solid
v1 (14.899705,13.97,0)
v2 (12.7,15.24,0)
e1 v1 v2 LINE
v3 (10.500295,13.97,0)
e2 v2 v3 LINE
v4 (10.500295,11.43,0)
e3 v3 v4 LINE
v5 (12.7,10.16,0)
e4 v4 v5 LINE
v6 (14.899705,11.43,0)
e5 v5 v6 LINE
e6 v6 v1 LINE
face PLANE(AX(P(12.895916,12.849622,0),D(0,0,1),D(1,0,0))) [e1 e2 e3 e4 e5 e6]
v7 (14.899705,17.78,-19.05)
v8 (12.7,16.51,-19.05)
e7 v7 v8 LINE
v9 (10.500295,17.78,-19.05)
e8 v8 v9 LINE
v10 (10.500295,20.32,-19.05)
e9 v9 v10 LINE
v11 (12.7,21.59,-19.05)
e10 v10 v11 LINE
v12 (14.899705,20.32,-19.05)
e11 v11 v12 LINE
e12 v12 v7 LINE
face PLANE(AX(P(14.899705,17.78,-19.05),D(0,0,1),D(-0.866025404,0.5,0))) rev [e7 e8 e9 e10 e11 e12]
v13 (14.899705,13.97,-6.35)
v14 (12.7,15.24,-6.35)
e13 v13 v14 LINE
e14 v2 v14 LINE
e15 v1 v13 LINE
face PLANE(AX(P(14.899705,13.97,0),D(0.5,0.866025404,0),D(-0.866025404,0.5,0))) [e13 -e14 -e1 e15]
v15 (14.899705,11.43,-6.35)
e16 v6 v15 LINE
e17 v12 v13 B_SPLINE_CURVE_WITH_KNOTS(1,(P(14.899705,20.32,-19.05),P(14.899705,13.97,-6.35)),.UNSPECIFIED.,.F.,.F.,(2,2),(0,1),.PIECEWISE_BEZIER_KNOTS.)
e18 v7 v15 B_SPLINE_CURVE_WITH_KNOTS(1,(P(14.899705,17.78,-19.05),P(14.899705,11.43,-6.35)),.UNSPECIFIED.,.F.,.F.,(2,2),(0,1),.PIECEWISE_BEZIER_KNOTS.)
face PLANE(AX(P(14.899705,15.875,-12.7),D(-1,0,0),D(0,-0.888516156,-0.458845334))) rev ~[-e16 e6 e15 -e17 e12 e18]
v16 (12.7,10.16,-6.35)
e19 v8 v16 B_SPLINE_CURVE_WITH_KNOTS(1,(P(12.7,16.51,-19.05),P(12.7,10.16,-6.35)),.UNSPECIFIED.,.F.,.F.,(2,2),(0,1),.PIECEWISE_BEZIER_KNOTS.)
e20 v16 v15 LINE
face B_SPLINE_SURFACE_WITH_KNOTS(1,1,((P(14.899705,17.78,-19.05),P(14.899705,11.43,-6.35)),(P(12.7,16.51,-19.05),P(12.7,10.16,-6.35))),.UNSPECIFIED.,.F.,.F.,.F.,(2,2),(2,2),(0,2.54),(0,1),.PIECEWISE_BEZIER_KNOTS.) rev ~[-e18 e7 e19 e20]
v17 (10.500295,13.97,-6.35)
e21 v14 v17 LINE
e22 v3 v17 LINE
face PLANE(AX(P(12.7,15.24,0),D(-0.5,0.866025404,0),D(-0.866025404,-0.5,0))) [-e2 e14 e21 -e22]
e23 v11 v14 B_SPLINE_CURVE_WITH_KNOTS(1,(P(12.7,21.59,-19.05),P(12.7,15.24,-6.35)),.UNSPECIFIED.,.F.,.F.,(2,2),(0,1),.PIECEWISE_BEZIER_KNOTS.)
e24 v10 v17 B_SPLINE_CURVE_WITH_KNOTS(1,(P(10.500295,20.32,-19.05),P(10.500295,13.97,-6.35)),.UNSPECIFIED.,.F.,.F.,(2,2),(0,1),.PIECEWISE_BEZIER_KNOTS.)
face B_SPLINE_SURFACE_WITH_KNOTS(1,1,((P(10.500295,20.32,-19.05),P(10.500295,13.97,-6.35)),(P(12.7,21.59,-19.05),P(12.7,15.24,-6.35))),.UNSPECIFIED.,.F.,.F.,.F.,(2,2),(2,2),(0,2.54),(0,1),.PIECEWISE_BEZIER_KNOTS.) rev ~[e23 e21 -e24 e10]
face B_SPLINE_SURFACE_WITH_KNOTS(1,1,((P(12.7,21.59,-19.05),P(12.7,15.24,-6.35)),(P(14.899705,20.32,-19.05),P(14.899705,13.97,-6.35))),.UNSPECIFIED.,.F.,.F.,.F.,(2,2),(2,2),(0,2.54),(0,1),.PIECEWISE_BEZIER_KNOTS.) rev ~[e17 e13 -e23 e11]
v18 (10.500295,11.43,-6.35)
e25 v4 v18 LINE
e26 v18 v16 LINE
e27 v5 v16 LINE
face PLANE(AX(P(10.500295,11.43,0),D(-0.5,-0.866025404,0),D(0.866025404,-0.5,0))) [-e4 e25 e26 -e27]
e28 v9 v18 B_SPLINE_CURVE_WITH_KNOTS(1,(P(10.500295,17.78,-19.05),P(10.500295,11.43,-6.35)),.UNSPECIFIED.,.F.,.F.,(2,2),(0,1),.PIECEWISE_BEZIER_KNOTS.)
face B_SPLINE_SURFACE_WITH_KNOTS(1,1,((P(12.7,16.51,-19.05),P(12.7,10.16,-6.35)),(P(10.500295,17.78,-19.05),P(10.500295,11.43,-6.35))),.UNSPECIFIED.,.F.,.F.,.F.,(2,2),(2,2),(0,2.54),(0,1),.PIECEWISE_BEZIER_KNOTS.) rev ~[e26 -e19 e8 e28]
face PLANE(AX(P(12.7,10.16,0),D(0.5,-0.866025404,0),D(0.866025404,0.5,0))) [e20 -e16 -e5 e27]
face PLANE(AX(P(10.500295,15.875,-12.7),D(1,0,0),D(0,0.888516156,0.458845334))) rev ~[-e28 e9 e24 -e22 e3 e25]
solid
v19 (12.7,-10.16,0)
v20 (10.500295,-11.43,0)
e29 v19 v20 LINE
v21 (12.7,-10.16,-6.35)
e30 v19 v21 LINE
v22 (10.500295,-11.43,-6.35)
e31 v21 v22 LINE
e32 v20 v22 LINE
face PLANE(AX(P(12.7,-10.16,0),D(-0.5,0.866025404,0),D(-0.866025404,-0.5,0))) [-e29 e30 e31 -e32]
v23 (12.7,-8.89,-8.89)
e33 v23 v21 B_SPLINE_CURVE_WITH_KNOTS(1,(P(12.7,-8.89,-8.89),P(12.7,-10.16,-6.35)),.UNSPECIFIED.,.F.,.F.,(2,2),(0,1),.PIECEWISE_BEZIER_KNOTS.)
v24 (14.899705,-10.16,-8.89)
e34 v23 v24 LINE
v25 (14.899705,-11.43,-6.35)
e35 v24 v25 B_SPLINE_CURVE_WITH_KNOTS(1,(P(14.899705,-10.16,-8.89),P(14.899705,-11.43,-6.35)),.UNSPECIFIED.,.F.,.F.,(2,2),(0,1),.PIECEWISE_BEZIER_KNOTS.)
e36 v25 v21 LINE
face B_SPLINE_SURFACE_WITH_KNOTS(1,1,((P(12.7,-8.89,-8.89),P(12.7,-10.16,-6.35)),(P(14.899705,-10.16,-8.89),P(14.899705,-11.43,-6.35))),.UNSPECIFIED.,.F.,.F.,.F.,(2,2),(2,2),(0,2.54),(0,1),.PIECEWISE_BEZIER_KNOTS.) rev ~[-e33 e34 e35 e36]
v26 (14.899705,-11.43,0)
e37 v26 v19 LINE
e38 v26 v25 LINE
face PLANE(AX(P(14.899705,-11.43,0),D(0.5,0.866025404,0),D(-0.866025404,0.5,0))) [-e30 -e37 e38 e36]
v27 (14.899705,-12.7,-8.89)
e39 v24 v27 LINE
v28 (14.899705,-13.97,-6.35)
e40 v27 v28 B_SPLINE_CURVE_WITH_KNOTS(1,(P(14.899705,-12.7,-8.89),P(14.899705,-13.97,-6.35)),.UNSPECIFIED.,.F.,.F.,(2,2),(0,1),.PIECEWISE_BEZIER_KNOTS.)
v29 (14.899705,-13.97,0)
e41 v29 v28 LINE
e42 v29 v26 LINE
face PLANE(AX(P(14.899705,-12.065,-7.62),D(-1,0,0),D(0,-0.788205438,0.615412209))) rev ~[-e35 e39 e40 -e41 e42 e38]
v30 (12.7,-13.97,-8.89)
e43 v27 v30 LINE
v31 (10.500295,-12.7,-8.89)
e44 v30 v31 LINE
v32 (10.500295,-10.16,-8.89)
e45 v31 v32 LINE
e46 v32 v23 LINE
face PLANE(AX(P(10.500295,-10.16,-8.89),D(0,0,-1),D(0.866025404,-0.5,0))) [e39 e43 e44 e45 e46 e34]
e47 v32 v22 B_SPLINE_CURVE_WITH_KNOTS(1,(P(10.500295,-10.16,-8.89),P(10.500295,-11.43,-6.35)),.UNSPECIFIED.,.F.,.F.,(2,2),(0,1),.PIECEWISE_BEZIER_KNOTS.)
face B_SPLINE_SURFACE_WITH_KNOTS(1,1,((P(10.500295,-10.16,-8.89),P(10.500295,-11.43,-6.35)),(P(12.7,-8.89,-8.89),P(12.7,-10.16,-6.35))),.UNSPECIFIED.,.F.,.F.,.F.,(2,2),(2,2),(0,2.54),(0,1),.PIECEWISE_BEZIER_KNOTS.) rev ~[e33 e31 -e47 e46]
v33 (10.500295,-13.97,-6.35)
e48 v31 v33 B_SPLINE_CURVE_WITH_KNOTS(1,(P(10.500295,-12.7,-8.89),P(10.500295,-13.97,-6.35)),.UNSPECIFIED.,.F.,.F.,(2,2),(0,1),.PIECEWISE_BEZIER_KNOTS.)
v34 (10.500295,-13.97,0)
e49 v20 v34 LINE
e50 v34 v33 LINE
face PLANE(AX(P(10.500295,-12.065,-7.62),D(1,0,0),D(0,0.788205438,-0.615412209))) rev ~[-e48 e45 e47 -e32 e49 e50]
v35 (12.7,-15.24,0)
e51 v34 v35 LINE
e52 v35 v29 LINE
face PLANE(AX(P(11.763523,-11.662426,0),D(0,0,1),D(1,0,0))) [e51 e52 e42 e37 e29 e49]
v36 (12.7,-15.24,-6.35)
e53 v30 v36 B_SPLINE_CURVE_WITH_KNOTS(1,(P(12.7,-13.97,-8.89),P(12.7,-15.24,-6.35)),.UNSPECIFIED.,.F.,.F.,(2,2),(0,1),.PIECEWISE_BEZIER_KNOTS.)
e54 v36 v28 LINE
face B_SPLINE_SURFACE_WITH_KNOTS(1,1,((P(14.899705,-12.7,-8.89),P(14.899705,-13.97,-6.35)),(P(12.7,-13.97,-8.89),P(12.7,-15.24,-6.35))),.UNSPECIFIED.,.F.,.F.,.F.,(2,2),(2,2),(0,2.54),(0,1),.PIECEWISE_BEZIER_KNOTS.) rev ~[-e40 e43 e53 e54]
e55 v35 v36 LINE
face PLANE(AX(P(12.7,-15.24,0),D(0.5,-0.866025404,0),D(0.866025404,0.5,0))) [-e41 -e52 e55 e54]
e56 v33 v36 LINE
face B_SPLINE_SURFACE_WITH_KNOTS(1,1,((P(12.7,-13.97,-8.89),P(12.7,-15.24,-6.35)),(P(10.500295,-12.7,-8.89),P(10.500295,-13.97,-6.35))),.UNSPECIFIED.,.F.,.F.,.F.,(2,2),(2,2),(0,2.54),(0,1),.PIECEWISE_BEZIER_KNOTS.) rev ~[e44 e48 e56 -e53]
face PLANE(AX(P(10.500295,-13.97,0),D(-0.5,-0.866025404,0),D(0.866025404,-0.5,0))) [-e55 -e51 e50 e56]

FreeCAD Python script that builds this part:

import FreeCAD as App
import Part
import Sketcher
from FreeCAD import Vector
Q = App.Units.Quantity

doc = App.newDocument("Part")
body = doc.addObject("PartDesign::Body", "Body")

# Sketch on XY plane
sketch1 = body.newObject("Sketcher::SketchObject", "Sketch")
sketch1.AttachmentSupport = (doc.getObject("XY_Plane"), [""])
sketch1.MapMode = "FlatFace"
sketch1.addGeometry(Part.LineSegment(Vector(12.7, 10.16, 0), Vector(14.899705, 11.43, 0)), False)
sketch1.addGeometry(Part.LineSegment(Vector(14.899705, 11.43, 0), Vector(14.899705, 13.97, 0)), False)
sketch1.addGeometry(Part.LineSegment(Vector(14.899705, 13.97, 0), Vector(12.7, 15.24, 0)), False)
sketch1.addGeometry(Part.LineSegment(Vector(12.7, 15.24, 0), Vector(10.500295, 13.97, 0)), False)
sketch1.addGeometry(Part.LineSegment(Vector(10.500295, 13.97, 0), Vector(10.500295, 11.43, 0)), False)
sketch1.addGeometry(Part.LineSegment(Vector(10.500295, 11.43, 0), Vector(12.7, 10.16, 0)), False)
sketch1.addConstraint(Sketcher.Constraint("Coincident", 0, 2, 1, 1))
sketch1.addConstraint(Sketcher.Constraint("Coincident", 1, 2, 2, 1))
sketch1.addConstraint(Sketcher.Constraint("Coincident", 2, 2, 3, 1))
sketch1.addConstraint(Sketcher.Constraint("Coincident", 3, 2, 4, 1))
sketch1.addConstraint(Sketcher.Constraint("Coincident", 4, 2, 5, 1))
sketch1.addConstraint(Sketcher.Constraint("Coincident", 5, 2, 0, 1))
sketch1.addConstraint(Sketcher.Constraint("Vertical", 1))
sketch1.addConstraint(Sketcher.Constraint("Vertical", 4))
sketch1.addConstraint(Sketcher.Constraint("Parallel", 0, 3))
sketch1.addConstraint(Sketcher.Constraint("Parallel", 2, 5))
sketch1.addConstraint(Sketcher.Constraint("Horizontal", 1, 2, 3, 2))
sketch1.addConstraint(Sketcher.Constraint("Horizontal", 0, 2, 4, 2))
sketch1.addConstraint(Sketcher.Constraint("Vertical", 2, 2, 5, 2))
sketch1.addConstraint(Sketcher.Constraint("DistanceY", 1, 1, 1, 2, Q("0.1 in")))
sketch1.addConstraint(Sketcher.Constraint("Angle", 0, Q("30 deg")))
sketch1.addConstraint(Sketcher.Constraint("Distance", 0, Q("0.1 in")))
sketch1.addConstraint(Sketcher.Constraint("DistanceX", -1, 1, 2, 2, Q("0.5 in")))
sketch1.addConstraint(Sketcher.Constraint("DistanceY", -1, 1, 2, 2, Q("0.6 in")))
pad1 = body.newObject("PartDesign::Pad", "Pad")
pad1.Profile = sketch1
pad1.Length = Q("0.25 in")
pad1.Reversed = True

# Sketch on XY plane
sketch2 = body.newObject("Sketcher::SketchObject", "Sketch001")
sketch2.AttachmentSupport = (doc.getObject("XY_Plane"), [""])
sketch2.MapMode = "FlatFace"
sketch2.AttachmentOffset = App.Placement(Vector(0, 0, -0.75 * 25.4), App.Rotation())
sketch2.addGeometry(Part.LineSegment(Vector(14.899705, 17.78, 0), Vector(12.7, 16.51, 0)), False)
sketch2.addGeometry(Part.LineSegment(Vector(12.7, 16.51, 0), Vector(10.500295, 17.78, 0)), False)
sketch2.addGeometry(Part.LineSegment(Vector(10.500295, 17.78, 0), Vector(10.500295, 20.32, 0)), False)
sketch2.addGeometry(Part.LineSegment(Vector(10.500295, 20.32, 0), Vector(12.7, 21.59, 0)), False)
sketch2.addGeometry(Part.LineSegment(Vector(12.7, 21.59, 0), Vector(14.899705, 20.32, 0)), False)
sketch2.addGeometry(Part.LineSegment(Vector(14.899705, 20.32, 0), Vector(14.899705, 17.78, 0)), False)
sketch2.addConstraint(Sketcher.Constraint("Coincident", 0, 2, 1, 1))
sketch2.addConstraint(Sketcher.Constraint("Coincident", 1, 2, 2, 1))
sketch2.addConstraint(Sketcher.Constraint("Coincident", 2, 2, 3, 1))
sketch2.addConstraint(Sketcher.Constraint("Coincident", 3, 2, 4, 1))
sketch2.addConstraint(Sketcher.Constraint("Coincident", 4, 2, 5, 1))
sketch2.addConstraint(Sketcher.Constraint("Coincident", 5, 2, 0, 1))
sketch2.addConstraint(Sketcher.Constraint("Vertical", 2))
sketch2.addConstraint(Sketcher.Constraint("Vertical", 5))
sketch2.addConstraint(Sketcher.Constraint("Parallel", 0, 3))
sketch2.addConstraint(Sketcher.Constraint("Parallel", 1, 4))
sketch2.addConstraint(Sketcher.Constraint("Horizontal", 2, 2, 4, 2))
sketch2.addConstraint(Sketcher.Constraint("Horizontal", 1, 2, 5, 2))
sketch2.addConstraint(Sketcher.Constraint("Vertical", 0, 2, 3, 2))
sketch2.addConstraint(Sketcher.Constraint("DistanceY", 2, 1, 2, 2, Q("0.1 in")))
sketch2.addConstraint(Sketcher.Constraint("Angle", 0, Q("-150 deg")))
sketch2.addConstraint(Sketcher.Constraint("Distance", 0, Q("0.1 in")))
sketch2.addConstraint(Sketcher.Constraint("DistanceX", -1, 1, 0, 2, Q("0.5 in")))
sketch2.addConstraint(Sketcher.Constraint("DistanceY", -1, 1, 1, 2, Q("0.7 in")))

# Sketch on XY plane
sketch3 = body.newObject("Sketcher::SketchObject", "Sketch002")
sketch3.AttachmentSupport = (doc.getObject("XY_Plane"), [""])
sketch3.MapMode = "FlatFace"
sketch3.AttachmentOffset = App.Placement(Vector(0, 0, -0.25 * 25.4), App.Rotation())
sketch3.addGeometry(Part.LineSegment(Vector(10.500295, 11.43, 0), Vector(10.500295, 13.97, 0)), False)
sketch3.addGeometry(Part.LineSegment(Vector(10.500295, 13.97, 0), Vector(12.7, 15.24, 0)), False)
sketch3.addGeometry(Part.LineSegment(Vector(12.7, 15.24, 0), Vector(14.899705, 13.97, 0)), False)
sketch3.addGeometry(Part.LineSegment(Vector(14.899705, 13.97, 0), Vector(14.899705, 11.43, 0)), False)
sketch3.addGeometry(Part.LineSegment(Vector(14.899705, 11.43, 0), Vector(12.7, 10.16, 0)), False)
sketch3.addGeometry(Part.LineSegment(Vector(12.7, 10.16, 0), Vector(10.500295, 11.43, 0)), False)
sketch3.addConstraint(Sketcher.Constraint("Coincident", 0, 2, 1, 1))
sketch3.addConstraint(Sketcher.Constraint("Coincident", 1, 2, 2, 1))
sketch3.addConstraint(Sketcher.Constraint("Coincident", 2, 2, 3, 1))
sketch3.addConstraint(Sketcher.Constraint("Coincident", 3, 2, 4, 1))
sketch3.addConstraint(Sketcher.Constraint("Coincident", 4, 2, 5, 1))
sketch3.addConstraint(Sketcher.Constraint("Coincident", 5, 2, 0, 1))
sketch3.addConstraint(Sketcher.Constraint("Vertical", 0))
sketch3.addConstraint(Sketcher.Constraint("Vertical", 3))
sketch3.addConstraint(Sketcher.Constraint("Parallel", 1, 4))
sketch3.addConstraint(Sketcher.Constraint("Parallel", 2, 5))
sketch3.addConstraint(Sketcher.Constraint("Horizontal", 0, 2, 2, 2))
sketch3.addConstraint(Sketcher.Constraint("Horizontal", 3, 2, 5, 2))
sketch3.addConstraint(Sketcher.Constraint("Vertical", 1, 2, 4, 2))
sketch3.addConstraint(Sketcher.Constraint("DistanceY", 0, 1, 0, 2, Q("0.1 in")))
sketch3.addConstraint(Sketcher.Constraint("Angle", 1, Q("30 deg")))
sketch3.addConstraint(Sketcher.Constraint("Distance", 1, Q("0.1 in")))
sketch3.addConstraint(Sketcher.Constraint("DistanceX", -1, 1, 1, 2, Q("0.5 in")))
sketch3.addConstraint(Sketcher.Constraint("DistanceY", -1, 1, 1, 2, Q("0.6 in")))

additiveloft = body.newObject("PartDesign::AdditiveLoft", "AdditiveLoft")
additiveloft.Profile = sketch2
additiveloft.Sections = [sketch3]
body2 = doc.addObject("PartDesign::Body", "Body001")

# Sketch on XY plane
sketch4 = body2.newObject("Sketcher::SketchObject", "Sketch003")
sketch4.AttachmentSupport = (doc.getObject("XY_Plane001"), [""])
sketch4.MapMode = "FlatFace"
sketch4.addGeometry(Part.LineSegment(Vector(12.7, -10.16, 0), Vector(10.500295, -11.43, 0)), False)
sketch4.addGeometry(Part.LineSegment(Vector(10.500295, -11.43, 0), Vector(10.500295, -13.97, 0)), False)
sketch4.addGeometry(Part.LineSegment(Vector(10.500295, -13.97, 0), Vector(12.7, -15.24, 0)), False)
sketch4.addGeometry(Part.LineSegment(Vector(12.7, -15.24, 0), Vector(14.899705, -13.97, 0)), False)
sketch4.addGeometry(Part.LineSegment(Vector(14.899705, -13.97, 0), Vector(14.899705, -11.43, 0)), False)
sketch4.addGeometry(Part.LineSegment(Vector(14.899705, -11.43, 0), Vector(12.7, -10.16, 0)), False)
sketch4.addConstraint(Sketcher.Constraint("Coincident", 0, 2, 1, 1))
sketch4.addConstraint(Sketcher.Constraint("Coincident", 1, 2, 2, 1))
sketch4.addConstraint(Sketcher.Constraint("Coincident", 2, 2, 3, 1))
sketch4.addConstraint(Sketcher.Constraint("Coincident", 3, 2, 4, 1))
sketch4.addConstraint(Sketcher.Constraint("Coincident", 4, 2, 5, 1))
sketch4.addConstraint(Sketcher.Constraint("Coincident", 5, 2, 0, 1))
sketch4.addConstraint(Sketcher.Constraint("Vertical", 1))
sketch4.addConstraint(Sketcher.Constraint("Vertical", 4))
sketch4.addConstraint(Sketcher.Constraint("Parallel", 0, 3))
sketch4.addConstraint(Sketcher.Constraint("Parallel", 2, 5))
sketch4.addConstraint(Sketcher.Constraint("Horizontal", 1, 2, 3, 2))
sketch4.addConstraint(Sketcher.Constraint("Horizontal", 0, 2, 4, 2))
sketch4.addConstraint(Sketcher.Constraint("Vertical", 2, 2, 5, 2))
sketch4.addConstraint(Sketcher.Constraint("DistanceY", 1, 2, 1, 1, Q("0.1 in")))
sketch4.addConstraint(Sketcher.Constraint("Angle", 0, Q("-150 deg")))
sketch4.addConstraint(Sketcher.Constraint("Distance", 0, Q("0.1 in")))
sketch4.addConstraint(Sketcher.Constraint("DistanceX", -1, 1, 2, 2, Q("0.5 in")))
sketch4.addConstraint(Sketcher.Constraint("DistanceY", 2, 2, -1, 1, Q("0.6 in")))
pad2 = body2.newObject("PartDesign::Pad", "Pad001")
pad2.Profile = sketch4
pad2.Length = Q("0.25 in")
pad2.Reversed = True

# Sketch on XY plane
sketch5 = body2.newObject("Sketcher::SketchObject", "Sketch004")
sketch5.AttachmentSupport = (doc.getObject("XY_Plane001"), [""])
sketch5.MapMode = "FlatFace"
sketch5.AttachmentOffset = App.Placement(Vector(0, 0, -0.35 * 25.4), App.Rotation())
sketch5.addGeometry(Part.LineSegment(Vector(10.500295, -10.16, 0), Vector(12.7, -8.89, 0)), False)
sketch5.addGeometry(Part.LineSegment(Vector(12.7, -8.89, 0), Vector(14.899705, -10.16, 0)), False)
sketch5.addGeometry(Part.LineSegment(Vector(14.899705, -10.16, 0), Vector(14.899705, -12.7, 0)), False)
sketch5.addGeometry(Part.LineSegment(Vector(14.899705, -12.7, 0), Vector(12.7, -13.97, 0)), False)
sketch5.addGeometry(Part.LineSegment(Vector(12.7, -13.97, 0), Vector(10.500295, -12.7, 0)), False)
sketch5.addGeometry(Part.LineSegment(Vector(10.500295, -12.7, 0), Vector(10.500295, -10.16, 0)), False)
sketch5.addConstraint(Sketcher.Constraint("Coincident", 0, 2, 1, 1))
sketch5.addConstraint(Sketcher.Constraint("Coincident", 1, 2, 2, 1))
sketch5.addConstraint(Sketcher.Constraint("Coincident", 2, 2, 3, 1))
sketch5.addConstraint(Sketcher.Constraint("Coincident", 3, 2, 4, 1))
sketch5.addConstraint(Sketcher.Constraint("Coincident", 4, 2, 5, 1))
sketch5.addConstraint(Sketcher.Constraint("Coincident", 5, 2, 0, 1))
sketch5.addConstraint(Sketcher.Constraint("Vertical", 2))
sketch5.addConstraint(Sketcher.Constraint("Vertical", 5))
sketch5.addConstraint(Sketcher.Constraint("Parallel", 0, 3))
sketch5.addConstraint(Sketcher.Constraint("Parallel", 1, 4))
sketch5.addConstraint(Sketcher.Constraint("Horizontal", 2, 2, 4, 2))
sketch5.addConstraint(Sketcher.Constraint("Horizontal", 1, 2, 5, 2))
sketch5.addConstraint(Sketcher.Constraint("Vertical", 0, 2, 3, 2))
sketch5.addConstraint(Sketcher.Constraint("DistanceY", 2, 2, 2, 1, Q("0.1 in")))
sketch5.addConstraint(Sketcher.Constraint("Angle", 0, Q("30 deg")))
sketch5.addConstraint(Sketcher.Constraint("Distance", 0, Q("0.1 in")))
sketch5.addConstraint(Sketcher.Constraint("DistanceX", -1, 1, 0, 2, Q("0.5 in")))
sketch5.addConstraint(Sketcher.Constraint("DistanceY", 1, 2, -1, 1, Q("0.4 in")))

# Sketch on XY plane
sketch6 = body2.newObject("Sketcher::SketchObject", "Sketch005")
sketch6.AttachmentSupport = (doc.getObject("XY_Plane001"), [""])
sketch6.MapMode = "FlatFace"
sketch6.AttachmentOffset = App.Placement(Vector(0, 0, -0.25 * 25.4), App.Rotation())
sketch6.addGeometry(Part.LineSegment(Vector(10.500295, -11.43, 0), Vector(12.7, -10.16, 0)), False)
sketch6.addGeometry(Part.LineSegment(Vector(12.7, -10.16, 0), Vector(14.899705, -11.43, 0)), False)
sketch6.addGeometry(Part.LineSegment(Vector(14.899705, -11.43, 0), Vector(14.899705, -13.97, 0)), False)
sketch6.addGeometry(Part.LineSegment(Vector(14.899705, -13.97, 0), Vector(12.7, -15.24, 0)), False)
sketch6.addGeometry(Part.LineSegment(Vector(12.7, -15.24, 0), Vector(10.500295, -13.97, 0)), False)
sketch6.addGeometry(Part.LineSegment(Vector(10.500295, -13.97, 0), Vector(10.500295, -11.43, 0)), False)
sketch6.addConstraint(Sketcher.Constraint("Coincident", 0, 2, 1, 1))
sketch6.addConstraint(Sketcher.Constraint("Coincident", 1, 2, 2, 1))
sketch6.addConstraint(Sketcher.Constraint("Coincident", 2, 2, 3, 1))
sketch6.addConstraint(Sketcher.Constraint("Coincident", 3, 2, 4, 1))
sketch6.addConstraint(Sketcher.Constraint("Coincident", 4, 2, 5, 1))
sketch6.addConstraint(Sketcher.Constraint("Coincident", 5, 2, 0, 1))
sketch6.addConstraint(Sketcher.Constraint("Vertical", 2))
sketch6.addConstraint(Sketcher.Constraint("Vertical", 5))
sketch6.addConstraint(Sketcher.Constraint("Parallel", 0, 3))
sketch6.addConstraint(Sketcher.Constraint("Parallel", 1, 4))
sketch6.addConstraint(Sketcher.Constraint("Horizontal", 2, 2, 4, 2))
sketch6.addConstraint(Sketcher.Constraint("Horizontal", 1, 2, 5, 2))
sketch6.addConstraint(Sketcher.Constraint("Vertical", 0, 2, 3, 2))
sketch6.addConstraint(Sketcher.Constraint("DistanceY", 2, 2, 2, 1, Q("0.1 in")))
sketch6.addConstraint(Sketcher.Constraint("Angle", 0, Q("30 deg")))
sketch6.addConstraint(Sketcher.Constraint("Distance", 0, Q("0.1 in")))
sketch6.addConstraint(Sketcher.Constraint("DistanceX", -1, 1, 0, 2, Q("0.5 in")))
sketch6.addConstraint(Sketcher.Constraint("DistanceY", 0, 2, -1, 1, Q("0.4 in")))

additiveloft2 = body2.newObject("PartDesign::AdditiveLoft", "AdditiveLoft001")
additiveloft2.Profile = sketch5
additiveloft2.Sections = [sketch6]

doc.recompute()
